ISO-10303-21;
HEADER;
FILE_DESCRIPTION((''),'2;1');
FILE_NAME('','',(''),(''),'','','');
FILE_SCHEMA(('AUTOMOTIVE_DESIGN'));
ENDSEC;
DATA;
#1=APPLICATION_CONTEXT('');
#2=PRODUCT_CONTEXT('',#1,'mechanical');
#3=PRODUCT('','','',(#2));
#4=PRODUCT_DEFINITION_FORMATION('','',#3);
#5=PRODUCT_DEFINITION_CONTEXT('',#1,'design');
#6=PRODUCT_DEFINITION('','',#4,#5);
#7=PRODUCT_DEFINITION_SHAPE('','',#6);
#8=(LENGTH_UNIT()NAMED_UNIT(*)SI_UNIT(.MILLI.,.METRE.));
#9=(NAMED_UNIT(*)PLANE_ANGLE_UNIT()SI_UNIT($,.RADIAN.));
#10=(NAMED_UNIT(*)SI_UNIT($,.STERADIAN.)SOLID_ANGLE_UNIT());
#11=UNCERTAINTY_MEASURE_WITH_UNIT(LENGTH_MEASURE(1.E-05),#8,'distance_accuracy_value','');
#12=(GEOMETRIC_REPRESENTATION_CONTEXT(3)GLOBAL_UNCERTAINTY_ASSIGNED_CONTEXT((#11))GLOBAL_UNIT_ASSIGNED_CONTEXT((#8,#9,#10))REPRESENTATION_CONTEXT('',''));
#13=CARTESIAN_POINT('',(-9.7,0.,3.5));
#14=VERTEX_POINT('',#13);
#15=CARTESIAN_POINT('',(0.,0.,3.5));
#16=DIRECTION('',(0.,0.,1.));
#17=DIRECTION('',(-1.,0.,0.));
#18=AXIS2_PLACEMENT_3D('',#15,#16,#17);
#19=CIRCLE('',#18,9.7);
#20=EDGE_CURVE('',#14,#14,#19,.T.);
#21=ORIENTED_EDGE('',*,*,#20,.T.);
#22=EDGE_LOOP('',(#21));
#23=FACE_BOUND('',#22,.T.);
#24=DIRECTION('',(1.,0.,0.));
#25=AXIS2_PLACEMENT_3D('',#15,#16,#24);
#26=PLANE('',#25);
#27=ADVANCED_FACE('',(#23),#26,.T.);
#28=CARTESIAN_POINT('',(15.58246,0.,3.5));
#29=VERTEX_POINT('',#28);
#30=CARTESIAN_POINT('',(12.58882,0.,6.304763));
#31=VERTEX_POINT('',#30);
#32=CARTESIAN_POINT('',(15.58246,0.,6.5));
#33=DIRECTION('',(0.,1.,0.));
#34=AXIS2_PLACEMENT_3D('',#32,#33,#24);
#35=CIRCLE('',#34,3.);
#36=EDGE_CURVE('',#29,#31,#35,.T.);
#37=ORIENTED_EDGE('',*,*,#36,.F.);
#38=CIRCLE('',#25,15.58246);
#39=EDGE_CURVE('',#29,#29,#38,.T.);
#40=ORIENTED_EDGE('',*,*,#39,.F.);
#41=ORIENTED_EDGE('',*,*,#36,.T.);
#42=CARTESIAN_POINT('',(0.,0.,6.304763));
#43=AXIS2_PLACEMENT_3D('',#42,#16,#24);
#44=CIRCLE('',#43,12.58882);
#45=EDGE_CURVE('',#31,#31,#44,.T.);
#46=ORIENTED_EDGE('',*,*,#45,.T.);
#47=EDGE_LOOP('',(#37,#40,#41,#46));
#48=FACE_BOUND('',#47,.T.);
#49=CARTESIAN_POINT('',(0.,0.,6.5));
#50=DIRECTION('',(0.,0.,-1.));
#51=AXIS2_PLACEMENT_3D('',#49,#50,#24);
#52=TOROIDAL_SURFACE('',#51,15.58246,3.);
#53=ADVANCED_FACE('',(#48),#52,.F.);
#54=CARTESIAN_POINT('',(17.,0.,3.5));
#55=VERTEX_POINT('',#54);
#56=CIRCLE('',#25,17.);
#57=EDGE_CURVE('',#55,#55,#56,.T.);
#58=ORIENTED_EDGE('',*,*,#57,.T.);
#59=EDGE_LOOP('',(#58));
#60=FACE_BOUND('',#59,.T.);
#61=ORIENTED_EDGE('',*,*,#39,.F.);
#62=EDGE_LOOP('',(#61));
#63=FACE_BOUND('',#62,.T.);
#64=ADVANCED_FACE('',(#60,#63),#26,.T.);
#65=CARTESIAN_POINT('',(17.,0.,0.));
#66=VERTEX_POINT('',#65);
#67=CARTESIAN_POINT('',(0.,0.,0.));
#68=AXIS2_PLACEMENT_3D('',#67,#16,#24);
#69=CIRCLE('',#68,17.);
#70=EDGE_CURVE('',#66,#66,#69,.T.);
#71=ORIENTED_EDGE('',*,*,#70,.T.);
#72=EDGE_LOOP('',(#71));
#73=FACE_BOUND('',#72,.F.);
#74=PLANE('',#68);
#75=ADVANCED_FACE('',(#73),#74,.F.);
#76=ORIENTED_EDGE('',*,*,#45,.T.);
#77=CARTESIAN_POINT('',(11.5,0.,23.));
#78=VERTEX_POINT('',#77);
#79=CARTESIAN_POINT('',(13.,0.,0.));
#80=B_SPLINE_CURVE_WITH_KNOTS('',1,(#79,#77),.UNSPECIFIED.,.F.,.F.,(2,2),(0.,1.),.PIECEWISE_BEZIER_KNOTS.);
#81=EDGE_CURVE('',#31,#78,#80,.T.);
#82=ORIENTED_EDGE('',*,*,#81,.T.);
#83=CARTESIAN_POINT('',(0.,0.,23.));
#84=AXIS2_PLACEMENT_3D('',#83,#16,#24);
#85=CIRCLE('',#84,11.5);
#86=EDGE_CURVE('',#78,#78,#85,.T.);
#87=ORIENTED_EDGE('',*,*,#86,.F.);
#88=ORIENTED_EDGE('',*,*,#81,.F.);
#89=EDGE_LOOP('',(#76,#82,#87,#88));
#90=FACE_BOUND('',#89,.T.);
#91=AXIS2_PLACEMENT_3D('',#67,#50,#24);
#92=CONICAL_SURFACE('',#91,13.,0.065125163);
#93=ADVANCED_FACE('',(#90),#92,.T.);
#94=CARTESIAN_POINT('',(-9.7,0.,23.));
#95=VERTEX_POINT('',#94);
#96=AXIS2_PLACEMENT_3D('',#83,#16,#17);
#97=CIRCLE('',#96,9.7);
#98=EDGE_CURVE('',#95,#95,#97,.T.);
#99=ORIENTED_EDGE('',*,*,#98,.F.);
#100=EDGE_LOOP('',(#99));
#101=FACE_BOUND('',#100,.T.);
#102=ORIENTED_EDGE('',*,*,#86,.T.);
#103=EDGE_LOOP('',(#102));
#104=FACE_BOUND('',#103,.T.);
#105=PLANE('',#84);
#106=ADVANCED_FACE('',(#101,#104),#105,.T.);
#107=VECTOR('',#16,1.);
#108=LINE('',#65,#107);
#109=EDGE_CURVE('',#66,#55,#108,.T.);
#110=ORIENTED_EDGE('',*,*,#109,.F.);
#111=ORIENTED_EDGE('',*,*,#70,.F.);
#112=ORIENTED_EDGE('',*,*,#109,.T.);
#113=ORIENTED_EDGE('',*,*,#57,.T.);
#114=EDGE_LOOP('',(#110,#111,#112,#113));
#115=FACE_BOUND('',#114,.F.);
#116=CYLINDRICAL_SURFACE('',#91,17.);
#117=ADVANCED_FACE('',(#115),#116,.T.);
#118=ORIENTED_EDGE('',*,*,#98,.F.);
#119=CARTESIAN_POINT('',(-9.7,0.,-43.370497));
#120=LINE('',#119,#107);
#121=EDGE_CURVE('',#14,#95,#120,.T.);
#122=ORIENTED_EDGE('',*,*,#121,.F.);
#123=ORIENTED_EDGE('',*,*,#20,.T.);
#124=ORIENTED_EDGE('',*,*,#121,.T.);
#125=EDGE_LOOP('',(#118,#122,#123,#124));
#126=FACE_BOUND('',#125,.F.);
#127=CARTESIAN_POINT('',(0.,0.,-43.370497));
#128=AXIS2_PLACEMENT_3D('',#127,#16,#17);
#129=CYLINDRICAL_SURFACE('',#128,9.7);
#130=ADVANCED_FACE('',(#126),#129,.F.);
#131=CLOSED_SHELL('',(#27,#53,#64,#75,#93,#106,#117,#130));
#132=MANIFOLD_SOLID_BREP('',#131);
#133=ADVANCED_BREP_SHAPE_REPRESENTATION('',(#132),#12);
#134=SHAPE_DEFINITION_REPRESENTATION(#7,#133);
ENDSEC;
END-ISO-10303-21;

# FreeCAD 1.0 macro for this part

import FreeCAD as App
import Part
import Sketcher
from FreeCAD import Vector
Q = App.Units.Quantity


def edges_at(feature, points):
    """Names of the edges that pass closest to the given points."""
    edges = feature.Shape.Edges
    near = lambda p: min(range(len(edges)), key=lambda i: edges[i].distToShape(Part.Vertex(*p))[0])
    return sorted({f"Edge{near(p) + 1}" for p in points})

doc = App.newDocument("Part")
body = doc.addObject("PartDesign::Body", "Body")

# Sketch on XY plane
sketch1 = doc.addObject("Sketcher::SketchObject", "Sketch")
body.addObject(sketch1)
sketch1.AttachmentSupport = (doc.XY_Plane, [""])
sketch1.MapMode = "FlatFace"
sketch1.addGeometry(Part.Circle(Vector(0, 0, 0), Vector(0, 0, 1), 13), False)
sketch1.addConstraint(Sketcher.Constraint("Coincident", 0, 3, -1, 1))
sketch1.addConstraint(Sketcher.Constraint("Diameter", 0, Q("26 mm")))

# Sketch on XY plane
sketch2 = doc.addObject("Sketcher::SketchObject", "Sketch001")
body.addObject(sketch2)
sketch2.AttachmentSupport = (doc.XY_Plane, [""])
sketch2.MapMode = "FlatFace"
sketch2.AttachmentOffset = App.Placement(Vector(0, 0, 23), App.Rotation())
sketch2.addGeometry(Part.Circle(Vector(0, 0, 0), Vector(0, 0, 1), 12), False)
sketch2.addConstraint(Sketcher.Constraint("Coincident", 0, 3, -1, 1))
sketch2.addConstraint(Sketcher.Constraint("Diameter", 0, Q("23 mm")))

additiveloft = doc.addObject("PartDesign::AdditiveLoft", "AdditiveLoft")
body.addObject(additiveloft)
additiveloft.Profile = sketch1
additiveloft.Sections = [sketch2]

# Sketch on XY plane
sketch3 = doc.addObject("Sketcher::SketchObject", "Sketch002")
body.addObject(sketch3)
sketch3.AttachmentSupport = (doc.XY_Plane, [""])
sketch3.MapMode = "FlatFace"
sketch3.addGeometry(Part.Circle(Vector(0, 0, 0), Vector(0, 0, 1), 10), False)
sketch3.addConstraint(Sketcher.Constraint("Coincident", 0, 3, -1, 1))
sketch3.addConstraint(Sketcher.Constraint("Diameter", 0, Q("19.4 mm")))
doc.recompute()
hole = doc.addObject("PartDesign::Hole", "Hole")
body.addObject(hole)
hole.Profile = sketch3
hole.ThreadType = "None"
hole.Diameter = 19.4
hole.DepthType = "ThroughAll"
hole.Reversed = True

# Sketch on XY plane
sketch4 = doc.addObject("Sketcher::SketchObject", "Sketch003")
body.addObject(sketch4)
sketch4.AttachmentSupport = (doc.XY_Plane, [""])
sketch4.MapMode = "FlatFace"
sketch4.addGeometry(Part.Circle(Vector(0, 0, 0), Vector(0, 0, 1), 17), False)
sketch4.addConstraint(Sketcher.Constraint("Coincident", 0, 3, -1, 1))
sketch4.addConstraint(Sketcher.Constraint("Diameter", 0, Q("34 mm")))
pad1 = doc.addObject("PartDesign::Pad", "Pad")
body.addObject(pad1)
pad1.Profile = sketch4
pad1.Length = 3.5
doc.recompute()

fillet = doc.addObject("PartDesign::Fillet", "Fillet")
body.addObject(fillet)
fillet.Base = (pad1, edges_at(pad1, [(-12.772, 0, 3.5)]))
fillet.Radius = 3

doc.recompute()
